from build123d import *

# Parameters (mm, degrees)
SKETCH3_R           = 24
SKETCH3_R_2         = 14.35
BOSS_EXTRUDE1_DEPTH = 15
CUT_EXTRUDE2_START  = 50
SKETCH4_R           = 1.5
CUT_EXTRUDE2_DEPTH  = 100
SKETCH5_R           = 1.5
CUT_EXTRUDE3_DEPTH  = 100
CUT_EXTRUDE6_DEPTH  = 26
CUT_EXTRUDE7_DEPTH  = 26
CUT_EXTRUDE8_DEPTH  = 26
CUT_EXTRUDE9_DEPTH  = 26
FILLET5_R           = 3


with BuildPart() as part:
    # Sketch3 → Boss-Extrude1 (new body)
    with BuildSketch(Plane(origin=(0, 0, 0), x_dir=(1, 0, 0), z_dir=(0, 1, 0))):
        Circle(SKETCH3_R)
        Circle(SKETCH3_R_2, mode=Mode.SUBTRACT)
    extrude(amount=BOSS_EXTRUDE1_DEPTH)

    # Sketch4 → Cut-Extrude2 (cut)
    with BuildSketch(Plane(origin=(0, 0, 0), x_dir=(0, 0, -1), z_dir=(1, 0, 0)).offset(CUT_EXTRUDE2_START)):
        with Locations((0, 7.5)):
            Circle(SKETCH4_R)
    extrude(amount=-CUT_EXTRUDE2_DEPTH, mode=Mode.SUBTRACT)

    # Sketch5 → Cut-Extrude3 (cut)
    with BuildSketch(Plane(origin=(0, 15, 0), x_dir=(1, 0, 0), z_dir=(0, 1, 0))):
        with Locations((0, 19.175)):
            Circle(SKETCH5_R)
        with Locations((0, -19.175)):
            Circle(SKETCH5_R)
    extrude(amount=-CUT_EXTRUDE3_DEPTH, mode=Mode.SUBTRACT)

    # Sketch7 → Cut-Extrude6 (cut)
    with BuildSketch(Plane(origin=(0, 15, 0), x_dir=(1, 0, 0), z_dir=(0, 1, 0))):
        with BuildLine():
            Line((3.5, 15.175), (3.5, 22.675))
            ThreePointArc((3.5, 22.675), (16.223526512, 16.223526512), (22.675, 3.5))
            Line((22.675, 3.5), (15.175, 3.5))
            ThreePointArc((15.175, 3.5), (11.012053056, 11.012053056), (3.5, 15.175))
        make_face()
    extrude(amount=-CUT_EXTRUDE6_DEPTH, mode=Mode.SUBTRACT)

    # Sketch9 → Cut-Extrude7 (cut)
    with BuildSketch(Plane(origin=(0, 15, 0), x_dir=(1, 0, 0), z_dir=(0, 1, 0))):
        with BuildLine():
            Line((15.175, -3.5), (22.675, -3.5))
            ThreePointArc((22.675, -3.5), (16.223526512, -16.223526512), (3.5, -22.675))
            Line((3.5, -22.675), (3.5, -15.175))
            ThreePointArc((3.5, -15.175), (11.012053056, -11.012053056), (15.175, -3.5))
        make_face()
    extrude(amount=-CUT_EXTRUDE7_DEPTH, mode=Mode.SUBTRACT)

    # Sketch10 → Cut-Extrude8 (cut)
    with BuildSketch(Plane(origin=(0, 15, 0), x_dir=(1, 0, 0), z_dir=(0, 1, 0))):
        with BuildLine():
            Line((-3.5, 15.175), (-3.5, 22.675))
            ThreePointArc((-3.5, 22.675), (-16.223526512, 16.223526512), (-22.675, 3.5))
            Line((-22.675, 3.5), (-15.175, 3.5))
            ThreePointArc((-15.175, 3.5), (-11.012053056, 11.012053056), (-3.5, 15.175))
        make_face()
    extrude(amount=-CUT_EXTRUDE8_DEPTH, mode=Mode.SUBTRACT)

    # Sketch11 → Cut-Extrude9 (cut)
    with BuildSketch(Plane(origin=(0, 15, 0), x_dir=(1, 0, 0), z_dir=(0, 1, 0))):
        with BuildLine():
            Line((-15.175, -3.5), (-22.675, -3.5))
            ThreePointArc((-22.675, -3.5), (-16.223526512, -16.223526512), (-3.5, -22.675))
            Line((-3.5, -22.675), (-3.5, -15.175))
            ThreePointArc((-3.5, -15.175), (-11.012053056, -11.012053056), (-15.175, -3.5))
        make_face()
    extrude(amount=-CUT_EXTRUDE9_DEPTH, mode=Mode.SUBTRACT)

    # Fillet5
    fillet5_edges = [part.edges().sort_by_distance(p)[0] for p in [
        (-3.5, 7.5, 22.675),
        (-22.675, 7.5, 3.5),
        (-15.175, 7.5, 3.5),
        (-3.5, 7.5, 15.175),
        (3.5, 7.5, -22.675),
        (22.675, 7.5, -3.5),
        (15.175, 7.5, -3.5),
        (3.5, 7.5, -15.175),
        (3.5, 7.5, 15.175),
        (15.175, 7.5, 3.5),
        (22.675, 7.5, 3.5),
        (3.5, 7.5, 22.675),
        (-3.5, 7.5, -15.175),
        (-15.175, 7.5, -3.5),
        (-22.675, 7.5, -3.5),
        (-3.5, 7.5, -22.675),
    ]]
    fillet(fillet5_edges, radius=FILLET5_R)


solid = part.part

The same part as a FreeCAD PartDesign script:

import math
import FreeCAD as App
import Part
import Sketcher
from FreeCAD import Vector


def edges_at(feature, points):
    """Names of the edges that pass closest to the given points."""
    edges = feature.Shape.Edges
    near = lambda p: min(range(len(edges)), key=lambda i: edges[i].distToShape(Part.Vertex(*p))[0])
    return sorted({f"Edge{near(p) + 1}" for p in points})

doc = App.newDocument("Part")
body = doc.addObject("PartDesign::Body", "Body")

sketch1 = body.newObject("Sketcher::SketchObject", "Sketch")
sketch1.AttachmentSupport = (doc.getObject("XZ_Plane"), [""])
sketch1.MapMode = "FlatFace"
sketch1.addGeometry([
    Part.Circle(Vector(0, 0, 0), Vector(0, 0, 1), 24),
    Part.Circle(Vector(0, 0, 0), Vector(0, 0, 1), 14),
], False)
sketch1.addConstraint([
    Sketcher.Constraint("Coincident", 0, 3, -1, 1),
    Sketcher.Constraint("Coincident", 1, 3, -1, 1),
    Sketcher.Constraint("Diameter", 0, 48.0),
    Sketcher.Constraint("Diameter", 1, 28.7),
])
pad1 = body.newObject("PartDesign::Pad", "Pad")
pad1.Profile = sketch1
pad1.Length = 15
pad1.Reversed = True

sketch2 = body.newObject("Sketcher::SketchObject", "Sketch001")
sketch2.AttachmentSupport = (doc.getObject("YZ_Plane"), [""])
sketch2.MapMode = "FlatFace"
sketch2.AttachmentOffset = App.Placement(Vector(0, 0, 50), App.Rotation())
sketch2.addGeometry(Part.Circle(Vector(7.5, 0, 0), Vector(0, 0, 1), 1.5), False)
sketch2.addConstraint([
    Sketcher.Constraint("PointOnObject", 0, 3, -1),
    Sketcher.Constraint("Diameter", 0, 3.0),
    Sketcher.Constraint("DistanceX", -1, 1, 0, 3, 7.5),
])
pocket1 = body.newObject("PartDesign::Pocket", "Pocket")
pocket1.Profile = sketch2
pocket1.Length = 100

sketch3 = body.newObject("Sketcher::SketchObject", "Sketch002")
sketch3.AttachmentSupport = (doc.getObject("XZ_Plane"), [""])
sketch3.MapMode = "FlatFace"
sketch3.AttachmentOffset = App.Placement(Vector(0, 0, -15), App.Rotation())
sketch3.addGeometry([
    Part.Circle(Vector(0, -19.2, 0), Vector(0, 0, 1), 1.5),
    Part.Circle(Vector(0, 19.2, 0), Vector(0, 0, 1), 1.5),
], False)
sketch3.addConstraint([
    Sketcher.Constraint("Equal", 0, 1),
    Sketcher.Constraint("Symmetric", 0, 3, 1, 3, -1, 1),
    Sketcher.Constraint("PointOnObject", 0, 3, -2),
    Sketcher.Constraint("Diameter", 0, 3.0),
    Sketcher.Constraint("DistanceY", 0, 3, 1, 3, 38.35),
])
pocket2 = body.newObject("PartDesign::Pocket", "Pocket001")
pocket2.Profile = sketch3
pocket2.Length = 100
pocket2.Reversed = True

sketch4 = body.newObject("Sketcher::SketchObject", "Sketch003")
sketch4.AttachmentSupport = (doc.getObject("XZ_Plane"), [""])
sketch4.MapMode = "FlatFace"
sketch4.AttachmentOffset = App.Placement(Vector(0, 0, -15), App.Rotation())
sketch4.addGeometry([
    Part.LineSegment(Vector(4, -23, 0), Vector(4, -15, 0)),
    Part.ArcOfCircle(Part.Circle(Vector(0, 0, 0), Vector(0, 0, 1), 16), math.radians(-77), math.radians(-13)),
    Part.LineSegment(Vector(15, -4, 0), Vector(23, -4, 0)),
    Part.ArcOfCircle(Part.Circle(Vector(0, 0, 0), Vector(0, 0, 1), 23), math.radians(-81), math.radians(-9)),
], False)
sketch4.addConstraint([
    Sketcher.Constraint("Coincident", 0, 2, 1, 1),
    Sketcher.Constraint("Coincident", 1, 2, 2, 1),
    Sketcher.Constraint("Coincident", 2, 2, 3, 2),
    Sketcher.Constraint("Coincident", 3, 1, 0, 1),
    Sketcher.Constraint("Vertical", 0),
    Sketcher.Constraint("Horizontal", 2),
    Sketcher.Constraint("Coincident", 1, 3, -1, 1),
    Sketcher.Constraint("Coincident", 3, 3, -1, 1),
    Sketcher.Constraint("Equal", 2, 0),
    Sketcher.Constraint("DistanceX", 2, 1, 2, 2, 7.5),
    Sketcher.Constraint("DistanceX", -1, 1, 0, 2, 3.5),
    Sketcher.Constraint("Radius", 3, 22.943531),
])
pocket3 = body.newObject("PartDesign::Pocket", "Pocket002")
pocket3.Profile = sketch4
pocket3.Length = 26
pocket3.Reversed = True

sketch5 = body.newObject("Sketcher::SketchObject", "Sketch004")
sketch5.AttachmentSupport = (doc.getObject("XZ_Plane"), [""])
sketch5.MapMode = "FlatFace"
sketch5.AttachmentOffset = App.Placement(Vector(0, 0, -15), App.Rotation())
sketch5.addGeometry([
    Part.LineSegment(Vector(23, 4, 0), Vector(15, 4, 0)),
    Part.ArcOfCircle(Part.Circle(Vector(0, 0, 0), Vector(0, 0, 1), 16), math.radians(13), math.radians(77)),
    Part.LineSegment(Vector(4, 15, 0), Vector(4, 23, 0)),
    Part.ArcOfCircle(Part.Circle(Vector(0, 0, 0), Vector(0, 0, 1), 23), math.radians(9), math.radians(81)),
], False)
sketch5.addConstraint([
    Sketcher.Constraint("Coincident", 0, 2, 1, 1),
    Sketcher.Constraint("Coincident", 1, 2, 2, 1),
    Sketcher.Constraint("Coincident", 2, 2, 3, 2),
    Sketcher.Constraint("Coincident", 3, 1, 0, 1),
    Sketcher.Constraint("Horizontal", 0),
    Sketcher.Constraint("Vertical", 2),
    Sketcher.Constraint("Coincident", 1, 3, -1, 1),
    Sketcher.Constraint("Coincident", 3, 3, -1, 1),
    Sketcher.Constraint("Equal", 0, 2),
    Sketcher.Constraint("DistanceX", 0, 2, 0, 1, 7.5),
    Sketcher.Constraint("DistanceY", -1, 1, 0, 2, 3.5),
    Sketcher.Constraint("Radius", 3, 22.943531),
])
pocket4 = body.newObject("PartDesign::Pocket", "Pocket003")
pocket4.Profile = sketch5
pocket4.Length = 26
pocket4.Reversed = True

sketch6 = body.newObject("Sketcher::SketchObject", "Sketch005")
sketch6.AttachmentSupport = (doc.getObject("XZ_Plane"), [""])
sketch6.MapMode = "FlatFace"
sketch6.AttachmentOffset = App.Placement(Vector(0, 0, -15), App.Rotation())
sketch6.addGeometry([
    Part.LineSegment(Vector(-4, -15, 0), Vector(-4, -23, 0)),
    Part.ArcOfCircle(Part.Circle(Vector(0, 0, 0), Vector(0, 0, 1), 23), math.radians(-171), math.radians(-99)),
    Part.LineSegment(Vector(-23, -4, 0), Vector(-15, -4, 0)),
    Part.ArcOfCircle(Part.Circle(Vector(0, 0, 0), Vector(0, 0, 1), 16), math.radians(-167), math.radians(-103)),
], False)
sketch6.addConstraint([
    Sketcher.Constraint("Coincident", 0, 2, 1, 2),
    Sketcher.Constraint("Coincident", 1, 1, 2, 1),
    Sketcher.Constraint("Coincident", 2, 2, 3, 1),
    Sketcher.Constraint("Coincident", 3, 2, 0, 1),
    Sketcher.Constraint("Vertical", 0),
    Sketcher.Constraint("Horizontal", 2),
    Sketcher.Constraint("Coincident", 1, 3, -1, 1),
    Sketcher.Constraint("Coincident", 3, 3, -1, 1),
    Sketcher.Constraint("Equal", 2, 0),
    Sketcher.Constraint("DistanceX", 2, 1, 2, 2, 7.5),
    Sketcher.Constraint("DistanceX", 0, 2, -1, 1, 3.5),
    Sketcher.Constraint("Radius", 1, 22.943531),
])
pocket5 = body.newObject("PartDesign::Pocket", "Pocket004")
pocket5.Profile = sketch6
pocket5.Length = 26
pocket5.Reversed = True

sketch7 = body.newObject("Sketcher::SketchObject", "Sketch006")
sketch7.AttachmentSupport = (doc.getObject("XZ_Plane"), [""])
sketch7.MapMode = "FlatFace"
sketch7.AttachmentOffset = App.Placement(Vector(0, 0, -15), App.Rotation())
sketch7.addGeometry([
    Part.LineSegment(Vector(-15, 4, 0), Vector(-23, 4, 0)),
    Part.ArcOfCircle(Part.Circle(Vector(0, 0, 0), Vector(0, 0, 1), 23), math.radians(99), math.radians(171)),
    Part.LineSegment(Vector(-4, 23, 0), Vector(-4, 15, 0)),
    Part.ArcOfCircle(Part.Circle(Vector(0, 0, 0), Vector(0, 0, 1), 16), math.radians(103), math.radians(167)),
], False)
sketch7.addConstraint([
    Sketcher.Constraint("Coincident", 0, 2, 1, 2),
    Sketcher.Constraint("Coincident", 1, 1, 2, 1),
    Sketcher.Constraint("Coincident", 2, 2, 3, 1),
    Sketcher.Constraint("Coincident", 3, 2, 0, 1),
    Sketcher.Constraint("Horizontal", 0),
    Sketcher.Constraint("Vertical", 2),
    Sketcher.Constraint("Coincident", 1, 3, -1, 1),
    Sketcher.Constraint("Coincident", 3, 3, -1, 1),
    Sketcher.Constraint("Equal", 0, 2),
    Sketcher.Constraint("DistanceX", 0, 2, 0, 1, 7.5),
    Sketcher.Constraint("DistanceY", -1, 1, 0, 2, 3.5),
    Sketcher.Constraint("Radius", 1, 22.943531),
])
pocket6 = body.newObject("PartDesign::Pocket", "Pocket005")
pocket6.Profile = sketch7
pocket6.Length = 26
pocket6.Reversed = True
doc.recompute()

fillet = body.newObject("PartDesign::Fillet", "Fillet")
fillet.Base = (pocket6, edges_at(pocket6, [
    (-3.5, 7.5, 22.675),
    (-22.675, 7.5, 3.5),
    (-15.175, 7.5, 3.5),
    (-3.5, 7.5, 15.175),
    (3.5, 7.5, -22.675),
    (22.675, 7.5, -3.5),
    (15.175, 7.5, -3.5),
    (3.5, 7.5, -15.175),
    (3.5, 7.5, 15.175),
    (15.175, 7.5, 3.5),
    (22.675, 7.5, 3.5),
    (3.5, 7.5, 22.675),
    (-3.5, 7.5, -15.175),
    (-15.175, 7.5, -3.5),
    (-22.675, 7.5, -3.5),
    (-3.5, 7.5, -22.675),
]))
fillet.Radius = 3

doc.recompute()
